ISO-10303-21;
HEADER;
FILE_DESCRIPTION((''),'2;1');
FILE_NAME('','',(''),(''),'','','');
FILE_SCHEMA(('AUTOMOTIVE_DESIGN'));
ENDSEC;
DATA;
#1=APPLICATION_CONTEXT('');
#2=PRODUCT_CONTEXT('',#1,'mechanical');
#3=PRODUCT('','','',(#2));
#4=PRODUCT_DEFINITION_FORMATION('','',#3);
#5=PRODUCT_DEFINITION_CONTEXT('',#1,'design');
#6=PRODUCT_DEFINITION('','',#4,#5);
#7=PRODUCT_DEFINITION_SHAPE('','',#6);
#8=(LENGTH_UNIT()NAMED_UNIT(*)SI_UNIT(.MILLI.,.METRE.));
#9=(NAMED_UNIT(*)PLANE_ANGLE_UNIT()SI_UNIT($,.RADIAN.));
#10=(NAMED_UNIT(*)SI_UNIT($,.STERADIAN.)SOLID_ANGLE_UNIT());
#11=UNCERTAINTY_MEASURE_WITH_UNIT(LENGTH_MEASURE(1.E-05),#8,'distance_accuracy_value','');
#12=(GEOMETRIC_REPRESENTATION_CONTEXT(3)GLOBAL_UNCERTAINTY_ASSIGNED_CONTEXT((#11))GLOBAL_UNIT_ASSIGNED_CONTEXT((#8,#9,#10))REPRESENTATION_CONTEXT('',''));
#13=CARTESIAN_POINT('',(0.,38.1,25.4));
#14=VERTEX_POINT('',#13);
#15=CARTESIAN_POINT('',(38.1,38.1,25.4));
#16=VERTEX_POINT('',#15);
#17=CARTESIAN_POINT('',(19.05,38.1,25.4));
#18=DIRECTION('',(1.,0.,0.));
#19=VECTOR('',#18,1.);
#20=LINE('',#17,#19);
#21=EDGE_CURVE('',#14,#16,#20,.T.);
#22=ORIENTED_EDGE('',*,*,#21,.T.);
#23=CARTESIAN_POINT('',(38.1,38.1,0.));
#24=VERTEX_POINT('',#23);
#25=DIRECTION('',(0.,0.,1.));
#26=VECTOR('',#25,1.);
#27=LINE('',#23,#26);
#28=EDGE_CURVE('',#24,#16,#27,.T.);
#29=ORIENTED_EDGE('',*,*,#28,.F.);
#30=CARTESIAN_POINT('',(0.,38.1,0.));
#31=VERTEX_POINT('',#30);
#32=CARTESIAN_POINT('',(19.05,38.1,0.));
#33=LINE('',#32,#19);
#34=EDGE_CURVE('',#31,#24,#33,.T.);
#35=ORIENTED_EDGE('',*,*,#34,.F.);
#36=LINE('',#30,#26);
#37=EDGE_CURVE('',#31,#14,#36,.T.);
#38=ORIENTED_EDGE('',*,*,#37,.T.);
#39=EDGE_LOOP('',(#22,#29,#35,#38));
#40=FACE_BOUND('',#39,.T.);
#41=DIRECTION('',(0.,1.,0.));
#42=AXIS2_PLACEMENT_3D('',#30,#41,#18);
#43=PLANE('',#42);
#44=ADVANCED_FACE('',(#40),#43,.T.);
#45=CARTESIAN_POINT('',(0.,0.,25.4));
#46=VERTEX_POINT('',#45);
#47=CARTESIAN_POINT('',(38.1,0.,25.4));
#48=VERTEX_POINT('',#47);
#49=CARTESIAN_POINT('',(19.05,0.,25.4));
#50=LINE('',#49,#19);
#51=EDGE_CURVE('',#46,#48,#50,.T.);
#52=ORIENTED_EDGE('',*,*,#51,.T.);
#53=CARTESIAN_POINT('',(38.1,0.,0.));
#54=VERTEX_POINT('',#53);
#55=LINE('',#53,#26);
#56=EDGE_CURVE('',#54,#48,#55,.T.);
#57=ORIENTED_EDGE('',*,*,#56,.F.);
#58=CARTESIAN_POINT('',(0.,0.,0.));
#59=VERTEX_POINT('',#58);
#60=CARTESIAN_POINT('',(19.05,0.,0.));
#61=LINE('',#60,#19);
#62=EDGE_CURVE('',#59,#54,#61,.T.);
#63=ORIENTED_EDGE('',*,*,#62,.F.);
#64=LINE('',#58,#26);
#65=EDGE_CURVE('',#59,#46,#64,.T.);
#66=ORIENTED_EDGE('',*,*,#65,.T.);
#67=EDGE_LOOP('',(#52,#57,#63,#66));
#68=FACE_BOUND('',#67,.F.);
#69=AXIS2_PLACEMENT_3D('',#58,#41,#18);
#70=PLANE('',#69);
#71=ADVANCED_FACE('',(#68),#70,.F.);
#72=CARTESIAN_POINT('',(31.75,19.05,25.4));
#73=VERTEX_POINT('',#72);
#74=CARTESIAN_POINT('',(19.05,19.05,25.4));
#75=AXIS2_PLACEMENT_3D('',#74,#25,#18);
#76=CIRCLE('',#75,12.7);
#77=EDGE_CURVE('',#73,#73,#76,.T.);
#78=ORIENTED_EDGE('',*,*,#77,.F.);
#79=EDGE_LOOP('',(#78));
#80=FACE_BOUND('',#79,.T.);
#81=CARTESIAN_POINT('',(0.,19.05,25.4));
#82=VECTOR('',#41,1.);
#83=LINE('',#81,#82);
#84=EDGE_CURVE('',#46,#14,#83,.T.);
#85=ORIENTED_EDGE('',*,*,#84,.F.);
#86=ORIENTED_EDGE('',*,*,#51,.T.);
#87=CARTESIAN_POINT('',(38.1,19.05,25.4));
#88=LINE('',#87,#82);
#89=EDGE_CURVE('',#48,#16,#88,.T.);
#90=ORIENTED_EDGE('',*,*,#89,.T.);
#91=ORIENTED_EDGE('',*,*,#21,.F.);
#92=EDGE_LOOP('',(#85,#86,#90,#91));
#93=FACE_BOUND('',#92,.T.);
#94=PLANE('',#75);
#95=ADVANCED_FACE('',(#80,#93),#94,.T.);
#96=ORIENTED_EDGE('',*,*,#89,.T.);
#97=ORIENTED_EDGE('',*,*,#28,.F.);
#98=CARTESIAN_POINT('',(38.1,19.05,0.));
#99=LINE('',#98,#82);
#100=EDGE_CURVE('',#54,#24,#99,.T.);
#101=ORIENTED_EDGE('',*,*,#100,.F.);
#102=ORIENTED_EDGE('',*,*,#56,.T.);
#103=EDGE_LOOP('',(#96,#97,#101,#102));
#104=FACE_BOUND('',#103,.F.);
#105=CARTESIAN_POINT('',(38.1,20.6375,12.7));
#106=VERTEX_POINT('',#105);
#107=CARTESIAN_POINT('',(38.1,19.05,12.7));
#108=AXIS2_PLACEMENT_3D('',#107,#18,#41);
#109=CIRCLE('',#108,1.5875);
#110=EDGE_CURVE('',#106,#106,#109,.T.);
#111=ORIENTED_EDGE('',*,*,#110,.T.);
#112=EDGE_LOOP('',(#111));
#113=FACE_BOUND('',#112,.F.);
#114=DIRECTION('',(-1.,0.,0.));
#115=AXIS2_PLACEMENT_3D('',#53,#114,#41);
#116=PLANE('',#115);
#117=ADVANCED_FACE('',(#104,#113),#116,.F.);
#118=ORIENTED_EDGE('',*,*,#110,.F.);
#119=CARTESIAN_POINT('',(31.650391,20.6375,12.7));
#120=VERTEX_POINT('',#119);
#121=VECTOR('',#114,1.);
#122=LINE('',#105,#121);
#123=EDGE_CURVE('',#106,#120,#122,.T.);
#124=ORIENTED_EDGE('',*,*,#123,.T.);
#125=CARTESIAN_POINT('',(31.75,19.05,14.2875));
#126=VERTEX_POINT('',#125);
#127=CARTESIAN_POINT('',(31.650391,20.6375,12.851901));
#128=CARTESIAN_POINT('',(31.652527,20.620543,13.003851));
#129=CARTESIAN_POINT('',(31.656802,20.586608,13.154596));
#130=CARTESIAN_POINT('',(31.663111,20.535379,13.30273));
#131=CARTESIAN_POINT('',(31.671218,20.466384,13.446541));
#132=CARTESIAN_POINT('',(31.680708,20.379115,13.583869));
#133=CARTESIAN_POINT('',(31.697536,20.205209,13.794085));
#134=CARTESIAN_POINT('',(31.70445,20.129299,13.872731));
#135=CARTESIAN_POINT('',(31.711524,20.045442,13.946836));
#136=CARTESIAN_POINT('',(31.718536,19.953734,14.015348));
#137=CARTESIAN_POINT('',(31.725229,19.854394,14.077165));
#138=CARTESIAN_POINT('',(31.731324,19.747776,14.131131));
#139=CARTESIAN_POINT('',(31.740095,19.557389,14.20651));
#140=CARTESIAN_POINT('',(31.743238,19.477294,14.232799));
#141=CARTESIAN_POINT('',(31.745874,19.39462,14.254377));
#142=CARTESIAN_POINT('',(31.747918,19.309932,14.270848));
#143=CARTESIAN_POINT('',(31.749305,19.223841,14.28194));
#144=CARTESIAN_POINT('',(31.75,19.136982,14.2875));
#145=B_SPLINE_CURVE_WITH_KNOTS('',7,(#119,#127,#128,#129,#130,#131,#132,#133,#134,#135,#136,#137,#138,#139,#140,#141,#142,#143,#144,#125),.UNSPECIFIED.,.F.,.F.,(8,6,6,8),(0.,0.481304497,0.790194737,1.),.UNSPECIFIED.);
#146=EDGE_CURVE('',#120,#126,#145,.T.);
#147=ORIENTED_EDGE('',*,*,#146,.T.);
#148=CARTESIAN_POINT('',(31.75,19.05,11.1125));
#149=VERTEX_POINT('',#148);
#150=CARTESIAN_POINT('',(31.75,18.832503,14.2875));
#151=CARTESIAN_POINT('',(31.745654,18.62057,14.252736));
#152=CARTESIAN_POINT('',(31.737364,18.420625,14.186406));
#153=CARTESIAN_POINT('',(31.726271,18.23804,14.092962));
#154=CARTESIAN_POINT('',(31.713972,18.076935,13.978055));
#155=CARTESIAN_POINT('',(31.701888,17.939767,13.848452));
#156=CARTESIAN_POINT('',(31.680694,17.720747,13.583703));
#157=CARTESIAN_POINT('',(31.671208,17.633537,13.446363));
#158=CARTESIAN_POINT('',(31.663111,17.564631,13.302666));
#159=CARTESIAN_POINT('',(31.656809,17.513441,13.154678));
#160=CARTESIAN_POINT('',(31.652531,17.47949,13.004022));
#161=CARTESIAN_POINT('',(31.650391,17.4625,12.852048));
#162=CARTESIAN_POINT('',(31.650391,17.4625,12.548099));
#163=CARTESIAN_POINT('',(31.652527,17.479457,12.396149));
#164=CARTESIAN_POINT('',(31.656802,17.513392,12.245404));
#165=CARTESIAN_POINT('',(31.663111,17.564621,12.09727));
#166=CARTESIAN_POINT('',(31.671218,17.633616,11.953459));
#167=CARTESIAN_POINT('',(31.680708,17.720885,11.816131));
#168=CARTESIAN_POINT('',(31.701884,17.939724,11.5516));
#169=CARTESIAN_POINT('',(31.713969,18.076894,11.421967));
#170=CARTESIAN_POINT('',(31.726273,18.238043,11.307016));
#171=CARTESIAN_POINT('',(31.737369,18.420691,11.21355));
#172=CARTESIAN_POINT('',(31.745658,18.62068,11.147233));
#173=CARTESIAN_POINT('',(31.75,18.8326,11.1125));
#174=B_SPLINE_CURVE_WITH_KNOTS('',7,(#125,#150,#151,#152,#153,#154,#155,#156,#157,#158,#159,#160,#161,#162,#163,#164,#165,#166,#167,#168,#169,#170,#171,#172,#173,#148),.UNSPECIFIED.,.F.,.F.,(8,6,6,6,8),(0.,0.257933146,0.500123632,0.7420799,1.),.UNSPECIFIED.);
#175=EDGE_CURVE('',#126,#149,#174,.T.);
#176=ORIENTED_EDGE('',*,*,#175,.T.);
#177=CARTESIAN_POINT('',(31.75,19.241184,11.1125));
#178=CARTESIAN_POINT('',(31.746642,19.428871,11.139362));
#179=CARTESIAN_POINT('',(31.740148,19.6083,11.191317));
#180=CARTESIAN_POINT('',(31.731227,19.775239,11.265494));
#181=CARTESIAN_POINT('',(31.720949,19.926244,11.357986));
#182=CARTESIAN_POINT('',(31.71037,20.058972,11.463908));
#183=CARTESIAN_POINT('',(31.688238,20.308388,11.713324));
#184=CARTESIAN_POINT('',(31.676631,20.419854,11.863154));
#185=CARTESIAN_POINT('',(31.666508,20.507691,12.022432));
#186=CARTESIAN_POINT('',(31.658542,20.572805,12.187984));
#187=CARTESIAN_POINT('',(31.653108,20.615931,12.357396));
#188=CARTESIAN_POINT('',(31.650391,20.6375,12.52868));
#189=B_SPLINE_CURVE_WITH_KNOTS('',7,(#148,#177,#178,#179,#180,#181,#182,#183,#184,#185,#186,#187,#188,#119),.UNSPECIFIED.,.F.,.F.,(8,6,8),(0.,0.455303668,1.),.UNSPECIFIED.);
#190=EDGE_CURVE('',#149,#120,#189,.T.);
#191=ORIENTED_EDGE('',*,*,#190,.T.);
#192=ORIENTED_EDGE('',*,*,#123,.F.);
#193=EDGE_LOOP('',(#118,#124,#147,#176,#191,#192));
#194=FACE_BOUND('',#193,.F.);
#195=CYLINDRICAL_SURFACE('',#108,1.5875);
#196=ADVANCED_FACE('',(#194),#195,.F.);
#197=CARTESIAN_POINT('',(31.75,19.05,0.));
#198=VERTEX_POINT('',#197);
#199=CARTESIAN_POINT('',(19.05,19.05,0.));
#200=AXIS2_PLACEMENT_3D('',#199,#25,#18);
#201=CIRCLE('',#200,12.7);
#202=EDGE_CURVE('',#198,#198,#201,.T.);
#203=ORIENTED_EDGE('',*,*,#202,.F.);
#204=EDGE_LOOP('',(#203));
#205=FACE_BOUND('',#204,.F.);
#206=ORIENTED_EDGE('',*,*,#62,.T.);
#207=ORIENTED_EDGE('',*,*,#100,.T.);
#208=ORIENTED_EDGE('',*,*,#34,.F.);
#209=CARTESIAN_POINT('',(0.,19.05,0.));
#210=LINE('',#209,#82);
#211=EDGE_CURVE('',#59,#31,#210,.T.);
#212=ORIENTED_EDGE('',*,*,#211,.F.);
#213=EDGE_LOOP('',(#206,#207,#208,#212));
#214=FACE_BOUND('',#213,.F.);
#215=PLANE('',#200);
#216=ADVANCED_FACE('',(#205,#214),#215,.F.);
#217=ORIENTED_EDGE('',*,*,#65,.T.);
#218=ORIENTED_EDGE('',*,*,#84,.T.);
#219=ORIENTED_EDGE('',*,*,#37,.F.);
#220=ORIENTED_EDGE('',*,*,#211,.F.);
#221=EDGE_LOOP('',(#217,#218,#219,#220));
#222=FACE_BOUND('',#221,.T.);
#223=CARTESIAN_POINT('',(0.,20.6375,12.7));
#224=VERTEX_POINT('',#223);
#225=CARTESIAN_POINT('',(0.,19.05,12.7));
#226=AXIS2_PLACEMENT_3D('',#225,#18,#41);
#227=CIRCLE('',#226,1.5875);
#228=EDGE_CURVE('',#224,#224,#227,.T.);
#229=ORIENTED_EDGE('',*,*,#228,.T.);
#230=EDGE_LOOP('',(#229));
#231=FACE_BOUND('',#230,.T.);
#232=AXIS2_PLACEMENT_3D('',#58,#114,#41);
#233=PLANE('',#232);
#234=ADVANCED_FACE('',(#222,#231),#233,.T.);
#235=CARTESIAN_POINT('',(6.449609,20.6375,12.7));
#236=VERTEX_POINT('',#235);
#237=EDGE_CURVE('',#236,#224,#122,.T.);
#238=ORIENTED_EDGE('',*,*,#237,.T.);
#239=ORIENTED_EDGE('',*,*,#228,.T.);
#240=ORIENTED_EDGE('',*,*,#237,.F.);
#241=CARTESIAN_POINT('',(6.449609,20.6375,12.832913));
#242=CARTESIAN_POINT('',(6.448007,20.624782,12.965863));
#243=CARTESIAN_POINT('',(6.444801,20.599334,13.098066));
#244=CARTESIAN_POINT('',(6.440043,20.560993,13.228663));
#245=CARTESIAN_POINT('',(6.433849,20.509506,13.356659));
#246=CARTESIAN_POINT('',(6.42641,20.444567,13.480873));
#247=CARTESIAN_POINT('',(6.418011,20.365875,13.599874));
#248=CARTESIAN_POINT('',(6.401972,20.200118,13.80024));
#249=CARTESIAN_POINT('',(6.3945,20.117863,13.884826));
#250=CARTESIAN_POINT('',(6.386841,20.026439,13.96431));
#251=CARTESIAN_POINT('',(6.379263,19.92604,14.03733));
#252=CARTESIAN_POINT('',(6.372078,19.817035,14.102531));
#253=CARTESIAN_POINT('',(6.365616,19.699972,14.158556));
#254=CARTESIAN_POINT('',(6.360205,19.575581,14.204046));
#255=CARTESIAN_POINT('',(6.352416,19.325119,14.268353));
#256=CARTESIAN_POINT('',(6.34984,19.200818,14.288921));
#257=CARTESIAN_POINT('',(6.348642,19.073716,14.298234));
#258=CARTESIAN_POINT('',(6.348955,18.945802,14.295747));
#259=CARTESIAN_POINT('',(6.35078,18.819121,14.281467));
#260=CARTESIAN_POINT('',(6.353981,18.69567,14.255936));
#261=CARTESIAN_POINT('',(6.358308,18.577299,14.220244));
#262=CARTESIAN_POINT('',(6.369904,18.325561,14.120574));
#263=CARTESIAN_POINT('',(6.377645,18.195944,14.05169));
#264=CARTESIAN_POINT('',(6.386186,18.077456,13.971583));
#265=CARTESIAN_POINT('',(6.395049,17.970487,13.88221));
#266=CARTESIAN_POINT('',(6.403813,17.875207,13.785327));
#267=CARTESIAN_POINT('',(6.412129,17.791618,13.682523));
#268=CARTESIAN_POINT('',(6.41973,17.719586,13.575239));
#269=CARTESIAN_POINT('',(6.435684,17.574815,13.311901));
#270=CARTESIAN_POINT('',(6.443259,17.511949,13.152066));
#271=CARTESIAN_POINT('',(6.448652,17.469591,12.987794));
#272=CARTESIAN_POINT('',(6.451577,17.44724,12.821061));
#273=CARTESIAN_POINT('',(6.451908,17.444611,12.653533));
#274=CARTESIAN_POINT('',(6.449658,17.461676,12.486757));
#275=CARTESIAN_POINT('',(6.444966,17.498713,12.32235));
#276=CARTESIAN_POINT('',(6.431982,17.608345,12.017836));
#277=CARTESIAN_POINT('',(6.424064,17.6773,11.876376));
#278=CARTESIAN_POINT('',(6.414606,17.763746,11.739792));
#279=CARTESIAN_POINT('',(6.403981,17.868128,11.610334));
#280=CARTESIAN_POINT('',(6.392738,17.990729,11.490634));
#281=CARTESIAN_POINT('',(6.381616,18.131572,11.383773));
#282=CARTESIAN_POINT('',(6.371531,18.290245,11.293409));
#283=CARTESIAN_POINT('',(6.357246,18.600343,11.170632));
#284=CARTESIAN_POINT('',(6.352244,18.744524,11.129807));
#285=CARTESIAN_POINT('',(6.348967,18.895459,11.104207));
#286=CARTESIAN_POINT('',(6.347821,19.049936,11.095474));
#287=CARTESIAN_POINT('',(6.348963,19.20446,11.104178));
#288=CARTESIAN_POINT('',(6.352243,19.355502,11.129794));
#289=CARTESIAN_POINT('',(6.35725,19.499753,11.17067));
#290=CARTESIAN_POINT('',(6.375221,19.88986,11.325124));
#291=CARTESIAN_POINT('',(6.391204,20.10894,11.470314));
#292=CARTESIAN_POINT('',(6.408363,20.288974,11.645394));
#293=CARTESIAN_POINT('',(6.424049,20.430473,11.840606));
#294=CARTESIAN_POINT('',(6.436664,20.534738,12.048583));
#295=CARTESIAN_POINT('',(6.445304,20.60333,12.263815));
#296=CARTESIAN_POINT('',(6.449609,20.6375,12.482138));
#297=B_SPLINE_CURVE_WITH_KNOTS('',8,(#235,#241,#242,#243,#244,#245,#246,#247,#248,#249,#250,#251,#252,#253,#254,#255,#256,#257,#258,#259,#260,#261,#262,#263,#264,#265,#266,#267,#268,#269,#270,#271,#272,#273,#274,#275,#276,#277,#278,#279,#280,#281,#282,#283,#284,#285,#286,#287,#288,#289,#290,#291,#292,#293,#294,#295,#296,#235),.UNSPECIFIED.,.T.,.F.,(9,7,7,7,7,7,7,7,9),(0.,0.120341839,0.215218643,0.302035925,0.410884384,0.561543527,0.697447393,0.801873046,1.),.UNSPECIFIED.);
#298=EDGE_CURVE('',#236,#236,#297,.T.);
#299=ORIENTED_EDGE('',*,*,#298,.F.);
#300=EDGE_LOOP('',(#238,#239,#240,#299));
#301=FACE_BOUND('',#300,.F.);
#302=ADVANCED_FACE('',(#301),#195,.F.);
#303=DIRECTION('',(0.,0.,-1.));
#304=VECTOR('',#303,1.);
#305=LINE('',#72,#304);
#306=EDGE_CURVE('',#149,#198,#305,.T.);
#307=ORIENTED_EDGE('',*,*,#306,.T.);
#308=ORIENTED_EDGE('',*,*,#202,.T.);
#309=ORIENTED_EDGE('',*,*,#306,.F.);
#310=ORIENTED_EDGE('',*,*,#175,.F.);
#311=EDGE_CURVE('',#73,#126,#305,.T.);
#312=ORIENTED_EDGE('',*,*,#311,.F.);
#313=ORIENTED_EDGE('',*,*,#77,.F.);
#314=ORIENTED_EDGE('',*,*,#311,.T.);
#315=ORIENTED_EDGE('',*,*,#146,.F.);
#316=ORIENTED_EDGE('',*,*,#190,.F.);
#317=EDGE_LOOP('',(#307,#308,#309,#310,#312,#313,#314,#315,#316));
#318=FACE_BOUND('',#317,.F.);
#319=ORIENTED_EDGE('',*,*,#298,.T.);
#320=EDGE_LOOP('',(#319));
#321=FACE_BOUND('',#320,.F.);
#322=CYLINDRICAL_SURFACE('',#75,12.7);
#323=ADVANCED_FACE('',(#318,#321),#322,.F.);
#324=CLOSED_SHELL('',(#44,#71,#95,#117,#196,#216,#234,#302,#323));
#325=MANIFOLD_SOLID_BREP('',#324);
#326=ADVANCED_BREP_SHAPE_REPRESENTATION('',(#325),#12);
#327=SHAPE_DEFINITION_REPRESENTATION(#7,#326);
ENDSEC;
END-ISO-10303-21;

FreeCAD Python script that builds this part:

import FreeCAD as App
import Part
import Sketcher
Q = App.Units.Quantity

doc = App.newDocument("Part")
body = doc.addObject("PartDesign::Body", "Body")

sketch1 = body.newObject("Sketcher::SketchObject", "Sketch")
sketch1.AttachmentSupport = (doc.getObject("XY_Plane"), [""])
sketch1.MapMode = "FlatFace"
sketch1.addGeometry([
    Part.LineSegment(App.Vector(0, 38, 0), App.Vector(0, 0, 0)),
    Part.LineSegment(App.Vector(0, 0, 0), App.Vector(38, 0, 0)),
    Part.LineSegment(App.Vector(38, 0, 0), App.Vector(38, 38, 0)),
    Part.LineSegment(App.Vector(38, 38, 0), App.Vector(0, 38, 0)),
], False)
sketch1.addConstraint([
    Sketcher.Constraint("Coincident", 0, 2, 1, 1),
    Sketcher.Constraint("Coincident", 1, 2, 2, 1),
    Sketcher.Constraint("Coincident", 2, 2, 3, 1),
    Sketcher.Constraint("Coincident", 3, 2, 0, 1),
    Sketcher.Constraint("Vertical", 0),
    Sketcher.Constraint("Horizontal", 1),
    Sketcher.Constraint("Vertical", 2),
    Sketcher.Constraint("Horizontal", 3),
    Sketcher.Constraint("Coincident", 0, 2, -1, 1),
    Sketcher.Constraint("Equal", 3, 0),
    Sketcher.Constraint("DistanceX", 1, 1, 1, 2, Q("1.5 in")),
])
pad1 = body.newObject("PartDesign::Pad", "Pad")
pad1.Profile = sketch1
pad1.Length = Q("1 in")

sketch2 = body.newObject("Sketcher::SketchObject", "Sketch001")
sketch2.AttachmentSupport = (doc.getObject("YZ_Plane"), [""])
sketch2.MapMode = "FlatFace"
sketch2.AttachmentOffset = App.Placement(App.Vector(0, 0, 1.5 * 25.4), App.Rotation())
sketch2.addGeometry(Part.Circle(App.Vector(19.1, 12.7, 0), App.Vector(0, 0, 1), 1.6), False)
sketch2.addConstraint([
    Sketcher.Constraint("Diameter", 0, Q("0.125 in")),
    Sketcher.Constraint("DistanceY", -1, 1, 0, 3, Q("0.5 in")),
    Sketcher.Constraint("DistanceX", -1, 1, 0, 3, Q("0.75 in")),
])
pocket1 = body.newObject("PartDesign::Pocket", "Pocket")
pocket1.Profile = sketch2
pocket1.Length = Q("1.5 in")

sketch3 = body.newObject("Sketcher::SketchObject", "Sketch002")
sketch3.AttachmentSupport = (doc.getObject("XY_Plane"), [""])
sketch3.MapMode = "FlatFace"
sketch3.AttachmentOffset = App.Placement(App.Vector(0, 0, 1 * 25.4), App.Rotation())
sketch3.addGeometry(Part.Circle(App.Vector(19, 19, 0), App.Vector(0, 0, 1), 13), False)
sketch3.addConstraint([
    Sketcher.Constraint("Diameter", 0, Q("1 in")),
    Sketcher.Constraint("DistanceX", -1, 1, 0, 3, Q("0.75 in")),
    Sketcher.Constraint("DistanceY", -1, 1, 0, 3, Q("0.75 in")),
])
pocket2 = body.newObject("PartDesign::Pocket", "Pocket001")
pocket2.Profile = sketch3
pocket2.Length = Q("1 in")

doc.recompute()
